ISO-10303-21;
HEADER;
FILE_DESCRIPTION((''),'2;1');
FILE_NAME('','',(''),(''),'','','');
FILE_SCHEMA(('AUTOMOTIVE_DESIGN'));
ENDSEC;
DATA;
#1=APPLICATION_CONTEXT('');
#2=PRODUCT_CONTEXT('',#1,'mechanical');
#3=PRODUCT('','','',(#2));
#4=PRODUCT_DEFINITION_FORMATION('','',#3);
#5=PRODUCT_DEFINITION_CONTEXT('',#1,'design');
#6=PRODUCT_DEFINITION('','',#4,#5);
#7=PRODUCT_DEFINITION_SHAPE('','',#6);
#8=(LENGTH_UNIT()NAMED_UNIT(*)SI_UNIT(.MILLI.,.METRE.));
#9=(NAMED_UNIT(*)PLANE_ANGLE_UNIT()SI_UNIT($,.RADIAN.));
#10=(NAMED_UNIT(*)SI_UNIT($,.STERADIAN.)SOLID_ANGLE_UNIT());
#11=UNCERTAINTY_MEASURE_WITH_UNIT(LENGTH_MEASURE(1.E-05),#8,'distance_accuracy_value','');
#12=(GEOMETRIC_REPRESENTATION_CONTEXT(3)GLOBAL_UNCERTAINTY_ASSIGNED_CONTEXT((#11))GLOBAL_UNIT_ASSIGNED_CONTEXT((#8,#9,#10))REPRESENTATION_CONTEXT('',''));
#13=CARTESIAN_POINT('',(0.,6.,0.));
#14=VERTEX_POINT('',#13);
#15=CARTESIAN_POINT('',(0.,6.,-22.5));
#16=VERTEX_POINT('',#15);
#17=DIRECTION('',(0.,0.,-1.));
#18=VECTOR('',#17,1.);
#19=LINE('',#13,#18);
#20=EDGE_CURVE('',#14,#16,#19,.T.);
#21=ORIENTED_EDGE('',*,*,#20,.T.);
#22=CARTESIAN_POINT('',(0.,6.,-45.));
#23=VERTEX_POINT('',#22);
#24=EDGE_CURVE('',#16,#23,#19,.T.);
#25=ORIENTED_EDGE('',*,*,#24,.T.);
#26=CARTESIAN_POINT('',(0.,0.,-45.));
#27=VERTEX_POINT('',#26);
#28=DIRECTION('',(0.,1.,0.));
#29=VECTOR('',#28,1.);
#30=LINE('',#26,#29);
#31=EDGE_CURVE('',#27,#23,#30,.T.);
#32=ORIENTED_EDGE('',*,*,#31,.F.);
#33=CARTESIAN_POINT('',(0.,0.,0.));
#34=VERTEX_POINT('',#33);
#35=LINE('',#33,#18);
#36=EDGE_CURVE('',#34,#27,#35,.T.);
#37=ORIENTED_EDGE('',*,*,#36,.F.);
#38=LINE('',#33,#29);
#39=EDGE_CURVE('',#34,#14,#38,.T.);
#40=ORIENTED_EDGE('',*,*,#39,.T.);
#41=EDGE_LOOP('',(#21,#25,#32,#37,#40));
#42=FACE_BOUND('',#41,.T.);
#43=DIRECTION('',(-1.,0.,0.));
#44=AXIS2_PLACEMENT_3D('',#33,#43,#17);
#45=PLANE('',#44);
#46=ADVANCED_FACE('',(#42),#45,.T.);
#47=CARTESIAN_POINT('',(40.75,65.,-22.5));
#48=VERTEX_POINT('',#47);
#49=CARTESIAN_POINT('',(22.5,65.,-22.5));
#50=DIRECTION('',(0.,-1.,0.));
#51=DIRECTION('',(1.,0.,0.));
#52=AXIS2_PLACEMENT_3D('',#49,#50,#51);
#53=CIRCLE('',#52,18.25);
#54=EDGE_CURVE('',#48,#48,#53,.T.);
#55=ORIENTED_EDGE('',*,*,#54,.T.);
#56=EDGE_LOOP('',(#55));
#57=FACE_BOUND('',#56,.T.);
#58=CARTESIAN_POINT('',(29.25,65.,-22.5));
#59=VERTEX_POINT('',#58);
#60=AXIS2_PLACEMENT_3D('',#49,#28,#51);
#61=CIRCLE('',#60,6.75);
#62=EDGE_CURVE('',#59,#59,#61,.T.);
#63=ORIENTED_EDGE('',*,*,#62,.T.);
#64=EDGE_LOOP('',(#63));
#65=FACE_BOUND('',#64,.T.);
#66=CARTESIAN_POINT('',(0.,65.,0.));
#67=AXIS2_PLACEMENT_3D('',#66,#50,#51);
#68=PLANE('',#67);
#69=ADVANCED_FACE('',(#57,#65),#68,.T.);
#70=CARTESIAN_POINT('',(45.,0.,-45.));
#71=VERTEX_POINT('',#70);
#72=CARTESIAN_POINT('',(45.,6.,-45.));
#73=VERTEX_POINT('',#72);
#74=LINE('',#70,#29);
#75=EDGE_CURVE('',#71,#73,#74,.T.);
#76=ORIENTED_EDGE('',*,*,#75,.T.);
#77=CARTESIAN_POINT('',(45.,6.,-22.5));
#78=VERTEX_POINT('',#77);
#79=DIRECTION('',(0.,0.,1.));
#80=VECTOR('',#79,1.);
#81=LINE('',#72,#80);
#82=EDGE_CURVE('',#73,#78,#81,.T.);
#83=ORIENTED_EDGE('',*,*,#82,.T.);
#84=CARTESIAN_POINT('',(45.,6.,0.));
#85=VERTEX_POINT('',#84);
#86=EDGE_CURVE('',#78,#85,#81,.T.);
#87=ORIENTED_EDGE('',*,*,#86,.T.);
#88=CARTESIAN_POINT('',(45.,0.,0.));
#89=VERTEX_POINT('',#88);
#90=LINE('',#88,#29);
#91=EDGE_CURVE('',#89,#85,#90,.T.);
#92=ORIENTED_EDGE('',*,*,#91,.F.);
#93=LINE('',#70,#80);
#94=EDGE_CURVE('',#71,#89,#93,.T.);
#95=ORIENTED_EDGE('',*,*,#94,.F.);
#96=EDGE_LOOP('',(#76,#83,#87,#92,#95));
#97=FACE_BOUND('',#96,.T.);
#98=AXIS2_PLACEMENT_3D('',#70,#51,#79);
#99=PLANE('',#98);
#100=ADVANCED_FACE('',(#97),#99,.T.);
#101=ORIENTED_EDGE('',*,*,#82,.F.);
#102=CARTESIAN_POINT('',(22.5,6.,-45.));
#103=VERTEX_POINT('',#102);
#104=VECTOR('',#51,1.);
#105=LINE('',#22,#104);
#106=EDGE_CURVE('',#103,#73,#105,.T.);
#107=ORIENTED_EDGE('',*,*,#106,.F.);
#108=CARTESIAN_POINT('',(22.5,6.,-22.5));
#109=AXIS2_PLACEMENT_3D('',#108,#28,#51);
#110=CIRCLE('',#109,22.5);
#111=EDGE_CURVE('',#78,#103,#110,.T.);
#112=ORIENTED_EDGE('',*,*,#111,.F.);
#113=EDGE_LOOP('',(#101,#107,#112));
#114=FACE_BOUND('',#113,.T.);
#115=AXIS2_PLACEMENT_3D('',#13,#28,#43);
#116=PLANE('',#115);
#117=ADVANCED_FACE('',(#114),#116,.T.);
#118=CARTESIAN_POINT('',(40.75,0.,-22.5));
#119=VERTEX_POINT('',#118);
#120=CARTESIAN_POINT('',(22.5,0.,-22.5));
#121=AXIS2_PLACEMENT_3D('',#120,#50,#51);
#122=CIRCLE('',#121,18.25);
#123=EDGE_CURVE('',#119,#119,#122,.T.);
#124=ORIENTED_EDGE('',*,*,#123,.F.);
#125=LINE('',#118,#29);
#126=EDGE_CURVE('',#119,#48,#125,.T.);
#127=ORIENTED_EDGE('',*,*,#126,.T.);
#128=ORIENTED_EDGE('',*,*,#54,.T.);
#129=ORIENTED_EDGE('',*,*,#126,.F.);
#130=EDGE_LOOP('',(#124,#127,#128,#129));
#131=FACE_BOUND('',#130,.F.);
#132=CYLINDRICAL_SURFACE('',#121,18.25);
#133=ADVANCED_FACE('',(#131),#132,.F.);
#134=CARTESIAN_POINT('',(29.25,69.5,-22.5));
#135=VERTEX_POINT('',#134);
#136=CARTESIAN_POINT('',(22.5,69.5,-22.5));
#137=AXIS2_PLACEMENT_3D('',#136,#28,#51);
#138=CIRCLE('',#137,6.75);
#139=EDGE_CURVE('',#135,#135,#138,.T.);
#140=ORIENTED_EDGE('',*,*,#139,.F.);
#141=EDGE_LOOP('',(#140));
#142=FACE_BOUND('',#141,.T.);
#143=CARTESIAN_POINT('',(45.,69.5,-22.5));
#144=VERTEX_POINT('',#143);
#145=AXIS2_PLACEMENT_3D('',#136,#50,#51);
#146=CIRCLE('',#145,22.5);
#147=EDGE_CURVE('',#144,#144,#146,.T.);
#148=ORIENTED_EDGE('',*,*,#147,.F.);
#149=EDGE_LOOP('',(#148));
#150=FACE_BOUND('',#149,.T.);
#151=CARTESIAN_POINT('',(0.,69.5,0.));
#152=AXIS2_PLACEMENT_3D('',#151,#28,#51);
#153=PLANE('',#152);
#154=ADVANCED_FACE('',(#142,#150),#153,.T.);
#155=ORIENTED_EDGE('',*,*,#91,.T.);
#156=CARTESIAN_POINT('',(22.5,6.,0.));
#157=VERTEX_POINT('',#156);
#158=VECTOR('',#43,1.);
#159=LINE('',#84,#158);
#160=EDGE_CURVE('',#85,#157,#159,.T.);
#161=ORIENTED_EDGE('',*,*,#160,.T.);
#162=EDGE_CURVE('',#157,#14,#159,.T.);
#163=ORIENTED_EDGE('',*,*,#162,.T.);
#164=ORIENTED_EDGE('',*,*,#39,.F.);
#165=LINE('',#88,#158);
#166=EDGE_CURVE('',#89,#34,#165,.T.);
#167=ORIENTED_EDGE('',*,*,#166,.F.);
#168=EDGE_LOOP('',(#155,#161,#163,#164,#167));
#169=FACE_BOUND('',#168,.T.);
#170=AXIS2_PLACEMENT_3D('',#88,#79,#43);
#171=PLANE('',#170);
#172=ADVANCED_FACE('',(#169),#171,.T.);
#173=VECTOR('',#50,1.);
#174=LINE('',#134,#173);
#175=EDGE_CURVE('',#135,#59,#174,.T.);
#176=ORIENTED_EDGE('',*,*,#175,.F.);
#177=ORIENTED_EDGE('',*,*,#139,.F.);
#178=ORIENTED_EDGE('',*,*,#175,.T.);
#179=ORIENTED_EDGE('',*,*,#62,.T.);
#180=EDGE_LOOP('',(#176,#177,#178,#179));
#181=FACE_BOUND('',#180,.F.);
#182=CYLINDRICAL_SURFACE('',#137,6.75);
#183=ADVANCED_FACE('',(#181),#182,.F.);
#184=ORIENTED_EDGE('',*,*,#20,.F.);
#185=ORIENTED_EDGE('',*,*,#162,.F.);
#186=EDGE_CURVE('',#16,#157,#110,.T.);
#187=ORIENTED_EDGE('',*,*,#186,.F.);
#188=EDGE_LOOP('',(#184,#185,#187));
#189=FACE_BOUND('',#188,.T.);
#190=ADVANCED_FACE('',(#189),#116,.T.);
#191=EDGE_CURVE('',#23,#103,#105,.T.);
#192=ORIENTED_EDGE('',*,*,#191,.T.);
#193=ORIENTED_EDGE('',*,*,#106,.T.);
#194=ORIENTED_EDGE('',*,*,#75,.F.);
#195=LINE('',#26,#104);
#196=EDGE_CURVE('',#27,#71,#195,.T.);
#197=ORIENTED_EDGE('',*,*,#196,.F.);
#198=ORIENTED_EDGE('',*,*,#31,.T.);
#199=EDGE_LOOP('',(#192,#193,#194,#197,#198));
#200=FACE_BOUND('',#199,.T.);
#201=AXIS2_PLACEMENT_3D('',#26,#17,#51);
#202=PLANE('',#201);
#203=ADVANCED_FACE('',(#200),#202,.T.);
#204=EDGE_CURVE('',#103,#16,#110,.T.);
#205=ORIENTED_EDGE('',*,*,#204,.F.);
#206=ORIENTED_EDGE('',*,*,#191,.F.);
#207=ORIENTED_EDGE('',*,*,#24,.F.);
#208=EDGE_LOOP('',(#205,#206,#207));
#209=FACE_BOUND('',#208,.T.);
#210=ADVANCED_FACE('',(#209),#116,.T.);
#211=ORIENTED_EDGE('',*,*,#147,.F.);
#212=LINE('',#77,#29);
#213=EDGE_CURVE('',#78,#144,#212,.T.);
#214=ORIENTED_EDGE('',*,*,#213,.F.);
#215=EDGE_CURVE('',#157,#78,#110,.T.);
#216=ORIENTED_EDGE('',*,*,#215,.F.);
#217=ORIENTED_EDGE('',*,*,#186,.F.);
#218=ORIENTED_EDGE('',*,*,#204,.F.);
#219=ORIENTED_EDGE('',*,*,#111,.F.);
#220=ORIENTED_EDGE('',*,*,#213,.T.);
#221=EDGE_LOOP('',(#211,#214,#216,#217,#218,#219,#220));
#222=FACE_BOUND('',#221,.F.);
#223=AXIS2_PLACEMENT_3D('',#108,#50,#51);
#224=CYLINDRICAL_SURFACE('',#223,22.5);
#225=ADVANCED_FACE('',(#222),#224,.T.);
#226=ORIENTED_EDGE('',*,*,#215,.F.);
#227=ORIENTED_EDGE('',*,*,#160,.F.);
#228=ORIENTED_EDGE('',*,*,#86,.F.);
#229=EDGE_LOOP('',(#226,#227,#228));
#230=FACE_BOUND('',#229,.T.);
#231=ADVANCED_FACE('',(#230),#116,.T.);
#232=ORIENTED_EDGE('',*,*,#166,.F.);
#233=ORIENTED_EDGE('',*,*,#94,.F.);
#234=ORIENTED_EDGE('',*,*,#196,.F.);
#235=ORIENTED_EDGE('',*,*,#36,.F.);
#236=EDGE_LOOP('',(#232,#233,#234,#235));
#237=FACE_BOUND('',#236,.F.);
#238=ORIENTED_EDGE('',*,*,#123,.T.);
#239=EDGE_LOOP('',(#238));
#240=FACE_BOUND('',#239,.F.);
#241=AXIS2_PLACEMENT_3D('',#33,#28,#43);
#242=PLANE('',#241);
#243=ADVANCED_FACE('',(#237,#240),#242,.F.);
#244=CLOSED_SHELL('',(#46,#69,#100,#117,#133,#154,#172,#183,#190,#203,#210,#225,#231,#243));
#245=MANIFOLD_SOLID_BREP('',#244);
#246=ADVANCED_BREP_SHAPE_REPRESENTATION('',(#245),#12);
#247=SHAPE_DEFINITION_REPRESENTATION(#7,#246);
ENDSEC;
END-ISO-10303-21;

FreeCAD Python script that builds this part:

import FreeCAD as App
import Part
import Sketcher
from FreeCAD import Vector
Q = App.Units.Quantity

doc = App.newDocument("Part")
params = doc.addObject("Spreadsheet::Sheet", "Params")
for row, (alias, value) in enumerate([
    ("sketch1_width", "45 mm"),
    ("pad1_length", "6 mm"),
    ("sketch2_diameter", "45 mm"),
    ("pad2_length", "63.5 mm"),
    ("sketch3_diameter", "36.5 mm"),
    ("pocket1_length", "65 mm"),
    ("sketch4_diameter", "13.5 mm"),
    ("pocket2_length", "4.5 mm"),
], start=1):
    params.set(f"A{row}", alias)
    params.set(f"B{row}", "=" + value)
    params.setAlias(f"B{row}", alias)

body = doc.addObject("PartDesign::Body", "Body")

# Sketch on XZ plane
sketch1 = doc.addObject("Sketcher::SketchObject", "Sketch")
body.addObject(sketch1)
sketch1.AttachmentSupport = (doc.XZ_Plane, [""])
sketch1.MapMode = "FlatFace"
sketch1.addGeometry(Part.LineSegment(Vector(0, -45, 0), Vector(0, 0, 0)), False)
sketch1.addGeometry(Part.LineSegment(Vector(0, 0, 0), Vector(45, 0, 0)), False)
sketch1.addGeometry(Part.LineSegment(Vector(45, 0, 0), Vector(45, -45, 0)), False)
sketch1.addGeometry(Part.LineSegment(Vector(45, -45, 0), Vector(0, -45, 0)), False)
sketch1.addConstraint(Sketcher.Constraint("Coincident", 0, 2, 1, 1))
sketch1.addConstraint(Sketcher.Constraint("Coincident", 1, 2, 2, 1))
sketch1.addConstraint(Sketcher.Constraint("Coincident", 2, 2, 3, 1))
sketch1.addConstraint(Sketcher.Constraint("Coincident", 3, 2, 0, 1))
sketch1.addConstraint(Sketcher.Constraint("Vertical", 0))
sketch1.addConstraint(Sketcher.Constraint("Horizontal", 1))
sketch1.addConstraint(Sketcher.Constraint("Vertical", 2))
sketch1.addConstraint(Sketcher.Constraint("Horizontal", 3))
sketch1.addConstraint(Sketcher.Constraint("Coincident", 0, 2, -1, 1))
sketch1.addConstraint(Sketcher.Constraint("Equal", 3, 0))
sketch1.addConstraint(Sketcher.Constraint("DistanceX", 1, 1, 1, 2, Q("45 mm")))
sketch1.setExpression("Constraints[10]", "Params.sketch1_width")
pad1 = doc.addObject("PartDesign::Pad", "Pad")
body.addObject(pad1)
pad1.Profile = sketch1
pad1.setExpression("Length", "Params.pad1_length")
pad1.Reversed = True

# Sketch on XZ plane
sketch2 = doc.addObject("Sketcher::SketchObject", "Sketch001")
body.addObject(sketch2)
sketch2.AttachmentSupport = (doc.XZ_Plane, [""])
sketch2.MapMode = "FlatFace"
sketch2.AttachmentOffset = App.Placement(Vector(0, 0, -6), App.Rotation())
sketch2.addGeometry(Part.Circle(Vector(22, -22, 0), Vector(0, 0, 1), 22), False)
sketch2.addConstraint(Sketcher.Constraint("Diameter", 0, Q("45 mm")))
sketch2.addConstraint(Sketcher.Constraint("DistanceX", -1, 1, 0, 3, Q("22.5 mm")))
sketch2.addConstraint(Sketcher.Constraint("DistanceY", 0, 3, -1, 1, Q("22.5 mm")))
sketch2.setExpression("Constraints[0]", "Params.sketch2_diameter")
pad2 = doc.addObject("PartDesign::Pad", "Pad001")
body.addObject(pad2)
pad2.Profile = sketch2
pad2.setExpression("Length", "Params.pad2_length")
pad2.Reversed = True

# Sketch on XZ plane
sketch3 = doc.addObject("Sketcher::SketchObject", "Sketch002")
body.addObject(sketch3)
sketch3.AttachmentSupport = (doc.XZ_Plane, [""])
sketch3.MapMode = "FlatFace"
sketch3.addGeometry(Part.Circle(Vector(22, -22, 0), Vector(0, 0, 1), 18), False)
sketch3.addConstraint(Sketcher.Constraint("Diameter", 0, Q("36.5 mm")))
sketch3.addConstraint(Sketcher.Constraint("DistanceX", -1, 1, 0, 3, Q("22.5 mm")))
sketch3.addConstraint(Sketcher.Constraint("DistanceY", 0, 3, -1, 1, Q("22.5 mm")))
sketch3.setExpression("Constraints[0]", "Params.sketch3_diameter")
pocket1 = doc.addObject("PartDesign::Pocket", "Pocket")
body.addObject(pocket1)
pocket1.Profile = sketch3
pocket1.setExpression("Length", "Params.pocket1_length")

# Sketch on XZ plane
sketch4 = doc.addObject("Sketcher::SketchObject", "Sketch003")
body.addObject(sketch4)
sketch4.AttachmentSupport = (doc.XZ_Plane, [""])
sketch4.MapMode = "FlatFace"
sketch4.AttachmentOffset = App.Placement(Vector(0, 0, -69.5), App.Rotation())
sketch4.addGeometry(Part.Circle(Vector(22, -22, 0), Vector(0, 0, 1), 7), False)
sketch4.addConstraint(Sketcher.Constraint("Diameter", 0, Q("13.5 mm")))
sketch4.addConstraint(Sketcher.Constraint("DistanceX", -1, 1, 0, 3, Q("22.5 mm")))
sketch4.addConstraint(Sketcher.Constraint("DistanceY", 0, 3, -1, 1, Q("22.5 mm")))
sketch4.setExpression("Constraints[0]", "Params.sketch4_diameter")
pocket2 = doc.addObject("PartDesign::Pocket", "Pocket001")
body.addObject(pocket2)
pocket2.Profile = sketch4
pocket2.setExpression("Length", "Params.pocket2_length")
pocket2.Reversed = True

doc.recompute()
